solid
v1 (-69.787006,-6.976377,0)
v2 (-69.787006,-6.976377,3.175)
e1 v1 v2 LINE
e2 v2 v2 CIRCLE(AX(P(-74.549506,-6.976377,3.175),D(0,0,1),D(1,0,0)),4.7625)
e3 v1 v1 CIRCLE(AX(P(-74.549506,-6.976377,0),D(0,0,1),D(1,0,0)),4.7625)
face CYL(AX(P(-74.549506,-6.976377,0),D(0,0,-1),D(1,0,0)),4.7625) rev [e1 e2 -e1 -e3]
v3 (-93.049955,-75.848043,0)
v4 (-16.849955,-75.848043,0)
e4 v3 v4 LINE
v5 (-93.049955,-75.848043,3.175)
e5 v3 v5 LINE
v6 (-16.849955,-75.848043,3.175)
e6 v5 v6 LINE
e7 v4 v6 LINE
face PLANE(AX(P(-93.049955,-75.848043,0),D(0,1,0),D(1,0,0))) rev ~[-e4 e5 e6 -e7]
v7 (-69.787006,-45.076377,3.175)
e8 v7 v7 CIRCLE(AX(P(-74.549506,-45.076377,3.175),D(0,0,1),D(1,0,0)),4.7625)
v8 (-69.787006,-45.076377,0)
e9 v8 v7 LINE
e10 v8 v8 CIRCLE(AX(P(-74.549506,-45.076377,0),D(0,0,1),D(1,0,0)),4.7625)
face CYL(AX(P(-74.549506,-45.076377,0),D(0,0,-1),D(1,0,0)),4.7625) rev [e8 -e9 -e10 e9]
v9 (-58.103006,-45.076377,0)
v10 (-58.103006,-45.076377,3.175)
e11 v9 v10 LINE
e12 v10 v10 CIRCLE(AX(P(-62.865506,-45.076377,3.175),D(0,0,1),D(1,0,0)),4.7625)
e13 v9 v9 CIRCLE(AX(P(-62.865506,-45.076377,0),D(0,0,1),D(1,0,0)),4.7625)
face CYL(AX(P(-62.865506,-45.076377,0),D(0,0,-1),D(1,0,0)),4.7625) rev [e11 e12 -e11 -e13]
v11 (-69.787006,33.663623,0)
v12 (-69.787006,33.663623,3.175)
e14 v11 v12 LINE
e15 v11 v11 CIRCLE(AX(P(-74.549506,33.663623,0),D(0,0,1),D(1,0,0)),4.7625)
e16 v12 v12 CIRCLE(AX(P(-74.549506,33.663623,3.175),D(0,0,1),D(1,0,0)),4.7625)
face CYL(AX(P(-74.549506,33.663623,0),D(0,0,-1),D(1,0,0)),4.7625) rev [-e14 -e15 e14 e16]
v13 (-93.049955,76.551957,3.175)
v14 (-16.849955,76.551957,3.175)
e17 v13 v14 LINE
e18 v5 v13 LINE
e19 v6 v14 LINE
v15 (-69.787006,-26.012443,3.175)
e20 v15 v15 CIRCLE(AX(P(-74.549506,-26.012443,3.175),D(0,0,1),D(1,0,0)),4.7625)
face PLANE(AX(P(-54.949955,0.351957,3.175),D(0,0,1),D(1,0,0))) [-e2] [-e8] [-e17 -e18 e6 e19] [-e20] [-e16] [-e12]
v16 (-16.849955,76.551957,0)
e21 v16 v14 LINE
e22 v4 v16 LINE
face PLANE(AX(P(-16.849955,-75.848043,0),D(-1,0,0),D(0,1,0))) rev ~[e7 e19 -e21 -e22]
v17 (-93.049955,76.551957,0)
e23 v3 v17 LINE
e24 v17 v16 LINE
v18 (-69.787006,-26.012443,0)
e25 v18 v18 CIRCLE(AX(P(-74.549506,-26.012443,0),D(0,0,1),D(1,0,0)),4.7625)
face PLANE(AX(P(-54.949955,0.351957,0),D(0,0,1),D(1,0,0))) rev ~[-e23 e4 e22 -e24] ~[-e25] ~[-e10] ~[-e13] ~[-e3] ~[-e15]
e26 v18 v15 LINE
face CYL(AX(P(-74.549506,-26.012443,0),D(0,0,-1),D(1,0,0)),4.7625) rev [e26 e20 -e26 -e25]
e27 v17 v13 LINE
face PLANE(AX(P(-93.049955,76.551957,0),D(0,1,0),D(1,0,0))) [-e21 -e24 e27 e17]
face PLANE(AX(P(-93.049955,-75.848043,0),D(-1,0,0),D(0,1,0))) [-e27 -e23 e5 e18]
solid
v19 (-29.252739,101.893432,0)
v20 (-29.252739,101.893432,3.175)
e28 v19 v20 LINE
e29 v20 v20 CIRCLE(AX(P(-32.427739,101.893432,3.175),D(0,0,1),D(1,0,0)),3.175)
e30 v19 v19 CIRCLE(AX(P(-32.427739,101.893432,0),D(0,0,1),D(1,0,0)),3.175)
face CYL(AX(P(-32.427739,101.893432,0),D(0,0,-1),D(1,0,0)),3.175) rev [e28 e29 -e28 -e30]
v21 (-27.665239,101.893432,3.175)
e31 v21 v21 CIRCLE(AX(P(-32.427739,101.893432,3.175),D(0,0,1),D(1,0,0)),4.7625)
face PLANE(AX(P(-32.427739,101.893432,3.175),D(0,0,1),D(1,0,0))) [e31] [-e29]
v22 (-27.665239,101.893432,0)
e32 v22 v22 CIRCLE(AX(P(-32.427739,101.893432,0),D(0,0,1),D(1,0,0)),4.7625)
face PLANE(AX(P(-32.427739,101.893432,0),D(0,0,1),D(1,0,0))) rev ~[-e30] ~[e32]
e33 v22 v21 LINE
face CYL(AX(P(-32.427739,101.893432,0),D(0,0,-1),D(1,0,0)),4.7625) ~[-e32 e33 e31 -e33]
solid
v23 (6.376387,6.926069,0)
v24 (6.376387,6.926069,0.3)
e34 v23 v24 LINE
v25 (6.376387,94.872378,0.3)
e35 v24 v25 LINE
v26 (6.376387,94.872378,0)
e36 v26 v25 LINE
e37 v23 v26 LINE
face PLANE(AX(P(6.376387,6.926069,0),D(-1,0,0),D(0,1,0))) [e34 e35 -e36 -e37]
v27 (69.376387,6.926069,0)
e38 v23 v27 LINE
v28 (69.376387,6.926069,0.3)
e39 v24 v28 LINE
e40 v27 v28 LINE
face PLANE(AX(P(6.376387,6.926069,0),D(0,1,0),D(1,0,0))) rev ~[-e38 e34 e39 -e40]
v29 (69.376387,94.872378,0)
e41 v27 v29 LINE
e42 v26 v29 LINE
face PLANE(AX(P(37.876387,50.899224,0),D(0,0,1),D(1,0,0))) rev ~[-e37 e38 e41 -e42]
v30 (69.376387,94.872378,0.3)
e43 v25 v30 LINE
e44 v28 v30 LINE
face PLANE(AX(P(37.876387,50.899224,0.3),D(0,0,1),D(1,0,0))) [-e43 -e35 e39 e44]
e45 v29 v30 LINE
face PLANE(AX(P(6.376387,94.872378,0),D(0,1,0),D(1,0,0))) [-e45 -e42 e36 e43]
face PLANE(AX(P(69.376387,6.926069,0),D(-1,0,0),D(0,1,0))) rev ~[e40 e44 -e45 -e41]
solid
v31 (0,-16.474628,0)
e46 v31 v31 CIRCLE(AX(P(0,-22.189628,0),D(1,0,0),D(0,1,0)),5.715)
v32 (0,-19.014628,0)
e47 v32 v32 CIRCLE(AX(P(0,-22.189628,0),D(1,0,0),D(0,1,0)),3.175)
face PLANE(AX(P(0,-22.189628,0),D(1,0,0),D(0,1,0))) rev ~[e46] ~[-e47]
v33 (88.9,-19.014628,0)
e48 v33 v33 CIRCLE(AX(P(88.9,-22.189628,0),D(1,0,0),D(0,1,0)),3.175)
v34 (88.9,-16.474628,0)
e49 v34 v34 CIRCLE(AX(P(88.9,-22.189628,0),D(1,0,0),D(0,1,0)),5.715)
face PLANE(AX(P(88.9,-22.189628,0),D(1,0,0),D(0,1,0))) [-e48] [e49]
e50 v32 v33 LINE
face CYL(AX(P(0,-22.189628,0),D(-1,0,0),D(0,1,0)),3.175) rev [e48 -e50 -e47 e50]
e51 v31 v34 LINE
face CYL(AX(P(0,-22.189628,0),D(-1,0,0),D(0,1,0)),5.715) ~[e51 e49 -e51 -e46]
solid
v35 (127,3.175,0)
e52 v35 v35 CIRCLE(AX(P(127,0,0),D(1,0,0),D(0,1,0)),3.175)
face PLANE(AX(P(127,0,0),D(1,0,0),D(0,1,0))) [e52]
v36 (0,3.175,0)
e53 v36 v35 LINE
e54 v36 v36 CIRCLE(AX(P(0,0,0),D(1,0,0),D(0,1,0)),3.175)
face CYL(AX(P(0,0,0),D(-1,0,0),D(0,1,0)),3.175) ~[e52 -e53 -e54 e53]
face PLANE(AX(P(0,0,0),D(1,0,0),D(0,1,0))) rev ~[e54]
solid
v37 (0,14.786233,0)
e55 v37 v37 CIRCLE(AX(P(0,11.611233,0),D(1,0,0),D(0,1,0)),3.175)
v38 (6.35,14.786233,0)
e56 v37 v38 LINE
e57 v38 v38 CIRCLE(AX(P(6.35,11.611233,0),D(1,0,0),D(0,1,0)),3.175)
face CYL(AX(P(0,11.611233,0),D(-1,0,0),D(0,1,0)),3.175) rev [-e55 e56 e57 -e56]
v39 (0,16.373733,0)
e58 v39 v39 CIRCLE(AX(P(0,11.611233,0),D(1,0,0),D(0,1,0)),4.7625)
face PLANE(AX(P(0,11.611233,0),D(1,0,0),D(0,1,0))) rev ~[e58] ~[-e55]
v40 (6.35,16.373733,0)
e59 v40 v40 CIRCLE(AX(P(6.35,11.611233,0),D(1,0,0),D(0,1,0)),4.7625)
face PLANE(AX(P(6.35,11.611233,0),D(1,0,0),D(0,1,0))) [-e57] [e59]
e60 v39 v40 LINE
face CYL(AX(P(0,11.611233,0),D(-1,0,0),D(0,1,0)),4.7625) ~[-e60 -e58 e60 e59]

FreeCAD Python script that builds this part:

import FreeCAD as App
import Part
import Sketcher

V = App.Vector
Q = App.Units.Quantity

doc = App.newDocument("Part")
body = doc.addObject("PartDesign::Body", "Body")

sketch1 = doc.addObject("Sketcher::SketchObject", "Sketch")
body.addObject(sketch1)
sketch1.AttachmentSupport = (doc.YZ_Plane, [""])
sketch1.MapMode = "FlatFace"
sketch1.addGeometry(Part.Circle(V(0, 0, 0), V(0, 0, 1), 3.2), False)
sketch1.addConstraint(Sketcher.Constraint("Coincident", 0, 3, -1, 1))
sketch1.addConstraint(Sketcher.Constraint("Diameter", 0, Q("0.25 in")))
pad1 = doc.addObject("PartDesign::Pad", "Pad")
body.addObject(pad1)
pad1.Profile = sketch1
pad1.Length = Q("5 in")
body2 = doc.addObject("PartDesign::Body", "Body001")

sketch2 = doc.addObject("Sketcher::SketchObject", "Sketch001")
body2.addObject(sketch2)
sketch2.AttachmentSupport = (doc.getObject("YZ_Plane001"), [""])
sketch2.MapMode = "FlatFace"
sketch2.addGeometry(Part.Circle(V(-22.2, 0, 0), V(0, 0, 1), 5.7), False)
sketch2.addGeometry(Part.Circle(V(-22.2, 0, 0), V(0, 0, 1), 3.2), False)
sketch2.addConstraint(Sketcher.Constraint("Coincident", 1, 3, 0, 3))
sketch2.addConstraint(Sketcher.Constraint("PointOnObject", 0, 3, -1))
sketch2.addConstraint(Sketcher.Constraint("Diameter", 0, Q("0.45 in")))
sketch2.addConstraint(Sketcher.Constraint("Diameter", 1, Q("0.25 in")))
sketch2.addConstraint(Sketcher.Constraint("DistanceX", 0, 3, -1, 1, Q("22.189628 mm")))
pad2 = doc.addObject("PartDesign::Pad", "Pad001")
body2.addObject(pad2)
pad2.Profile = sketch2
pad2.Length = Q("3.5 in")
body3 = doc.addObject("PartDesign::Body", "Body002")

sketch3 = doc.addObject("Sketcher::SketchObject", "Sketch002")
body3.addObject(sketch3)
sketch3.AttachmentSupport = (doc.getObject("XY_Plane002"), [""])
sketch3.MapMode = "FlatFace"
sketch3.addGeometry(Part.LineSegment(V(6, 95, 0), V(6, 7, 0)), False)
sketch3.addGeometry(Part.LineSegment(V(6, 7, 0), V(69, 7, 0)), False)
sketch3.addGeometry(Part.LineSegment(V(69, 7, 0), V(69, 95, 0)), False)
sketch3.addGeometry(Part.LineSegment(V(69, 95, 0), V(6, 95, 0)), False)
sketch3.addConstraint(Sketcher.Constraint("Coincident", 0, 2, 1, 1))
sketch3.addConstraint(Sketcher.Constraint("Coincident", 1, 2, 2, 1))
sketch3.addConstraint(Sketcher.Constraint("Coincident", 2, 2, 3, 1))
sketch3.addConstraint(Sketcher.Constraint("Coincident", 3, 2, 0, 1))
sketch3.addConstraint(Sketcher.Constraint("Vertical", 0))
sketch3.addConstraint(Sketcher.Constraint("Horizontal", 1))
sketch3.addConstraint(Sketcher.Constraint("Vertical", 2))
sketch3.addConstraint(Sketcher.Constraint("Horizontal", 3))
sketch3.addConstraint(Sketcher.Constraint("DistanceX", 1, 1, 1, 2, Q("63 mm")))
sketch3.addConstraint(Sketcher.Constraint("DistanceY", 0, 2, 0, 1, Q("87.946309 mm")))
sketch3.addConstraint(Sketcher.Constraint("DistanceY", -1, 1, 0, 2, Q("6.926069 mm")))
sketch3.addConstraint(Sketcher.Constraint("DistanceX", -1, 1, 0, 2, Q("6.376387 mm")))
pad3 = doc.addObject("PartDesign::Pad", "Pad002")
body3.addObject(pad3)
pad3.Profile = sketch3
pad3.Length = 0.3
body4 = doc.addObject("PartDesign::Body", "Body003")

sketch4 = doc.addObject("Sketcher::SketchObject", "Sketch003")
body4.addObject(sketch4)
sketch4.AttachmentSupport = (doc.getObject("YZ_Plane003"), [""])
sketch4.MapMode = "FlatFace"
sketch4.addGeometry(Part.Circle(V(11.6, 0, 0), V(0, 0, 1), 4.8), False)
sketch4.addGeometry(Part.Circle(V(11.6, 0, 0), V(0, 0, 1), 3.2), False)
sketch4.addConstraint(Sketcher.Constraint("Coincident", 1, 3, 0, 3))
sketch4.addConstraint(Sketcher.Constraint("PointOnObject", 0, 3, -1))
sketch4.addConstraint(Sketcher.Constraint("Diameter", 1, Q("0.25 in")))
sketch4.addConstraint(Sketcher.Constraint("Diameter", 0, Q("0.375 in")))
sketch4.addConstraint(Sketcher.Constraint("DistanceX", -1, 1, 0, 3, Q("11.611233 mm")))
pad4 = doc.addObject("PartDesign::Pad", "Pad003")
body4.addObject(pad4)
pad4.Profile = sketch4
pad4.Length = Q("0.25 in")
body5 = doc.addObject("PartDesign::Body", "Body004")

sketch5 = doc.addObject("Sketcher::SketchObject", "Sketch004")
body5.addObject(sketch5)
sketch5.AttachmentSupport = (doc.getObject("XY_Plane004"), [""])
sketch5.MapMode = "FlatFace"
sketch5.addGeometry(Part.LineSegment(V(-93, 76.6, 0), V(-93, -75.8, 0)), False)
sketch5.addGeometry(Part.LineSegment(V(-93, -75.8, 0), V(-16.8, -75.8, 0)), False)
sketch5.addGeometry(Part.LineSegment(V(-16.8, -75.8, 0), V(-16.8, 76.6, 0)), False)
sketch5.addGeometry(Part.LineSegment(V(-16.8, 76.6, 0), V(-93, 76.6, 0)), False)
sketch5.addGeometry(Part.Circle(V(-74.5, -45.1, 0), V(0, 0, 1), 4.8), False)
sketch5.addGeometry(Part.Circle(V(-74.5, -26, 0), V(0, 0, 1), 4.8), False)
sketch5.addGeometry(Part.Circle(V(-74.5, -7, 0), V(0, 0, 1), 4.8), False)
sketch5.addGeometry(Part.Circle(V(-62.9, -45.1, 0), V(0, 0, 1), 4.8), False)
sketch5.addGeometry(Part.Circle(V(-74.5, 33.7, 0), V(0, 0, 1), 4.8), False)
sketch5.addConstraint(Sketcher.Constraint("Coincident", 0, 2, 1, 1))
sketch5.addConstraint(Sketcher.Constraint("Coincident", 1, 2, 2, 1))
sketch5.addConstraint(Sketcher.Constraint("Coincident", 2, 2, 3, 1))
sketch5.addConstraint(Sketcher.Constraint("Coincident", 3, 2, 0, 1))
sketch5.addConstraint(Sketcher.Constraint("Vertical", 0))
sketch5.addConstraint(Sketcher.Constraint("Horizontal", 1))
sketch5.addConstraint(Sketcher.Constraint("Vertical", 2))
sketch5.addConstraint(Sketcher.Constraint("Horizontal", 3))
sketch5.addConstraint(Sketcher.Constraint("Equal", 4, 5))
sketch5.addConstraint(Sketcher.Constraint("Equal", 5, 6))
sketch5.addConstraint(Sketcher.Constraint("Equal", 6, 7))
sketch5.addConstraint(Sketcher.Constraint("Equal", 7, 8))
sketch5.addConstraint(Sketcher.Constraint("Horizontal", 4, 3, 7, 3))
sketch5.addConstraint(Sketcher.Constraint("Vertical", 4, 3, 5, 3))
sketch5.addConstraint(Sketcher.Constraint("Vertical", 5, 3, 6, 3))
sketch5.addConstraint(Sketcher.Constraint("Vertical", 6, 3, 8, 3))
sketch5.addConstraint(Sketcher.Constraint("DistanceX", 1, 1, 1, 2, Q("3 in")))
sketch5.addConstraint(Sketcher.Constraint("DistanceY", 0, 2, 0, 1, Q("6 in")))
sketch5.addConstraint(Sketcher.Constraint("Diameter", 4, Q("0.375 in")))
sketch5.addConstraint(Sketcher.Constraint("DistanceY", 4, 3, 6, 3, Q("1.5 in")))
sketch5.addConstraint(Sketcher.Constraint("DistanceY", 6, 3, 8, 3, Q("1.6 in")))
sketch5.addConstraint(Sketcher.Constraint("DistanceX", 4, 3, 7, 3, Q("0.46 in")))
sketch5.addConstraint(Sketcher.Constraint("DistanceY", 0, 2, 5, 3, Q("49.8356 mm")))
sketch5.addConstraint(Sketcher.Constraint("DistanceX", 0, 2, 4, 3, Q("18.500449 mm")))
sketch5.addConstraint(Sketcher.Constraint("DistanceX", 4, 3, -1, 1, Q("74.549506 mm")))
sketch5.addConstraint(Sketcher.Constraint("DistanceY", 4, 3, -1, 1, Q("45.076377 mm")))
sketch5.addConstraint(Sketcher.Constraint("DistanceY", 5, 3, -1, 1, Q("26.012443 mm")))
pad5 = doc.addObject("PartDesign::Pad", "Pad004")
body5.addObject(pad5)
pad5.Profile = sketch5
pad5.Length = Q("0.125 in")
body6 = doc.addObject("PartDesign::Body", "Body005")

sketch6 = doc.addObject("Sketcher::SketchObject", "Sketch005")
body6.addObject(sketch6)
sketch6.AttachmentSupport = (doc.getObject("XY_Plane005"), [""])
sketch6.MapMode = "FlatFace"
sketch6.addGeometry(Part.Circle(V(-32.4, 101.9, 0), V(0, 0, 1), 4.8), False)
sketch6.addGeometry(Part.Circle(V(-32.4, 101.9, 0), V(0, 0, 1), 3.2), False)
sketch6.addConstraint(Sketcher.Constraint("Coincident", 1, 3, 0, 3))
sketch6.addConstraint(Sketcher.Constraint("Diameter", 1, Q("0.25 in")))
sketch6.addConstraint(Sketcher.Constraint("Diameter", 0, Q("0.375 in")))
sketch6.addConstraint(Sketcher.Constraint("DistanceX", 0, 3, -1, 1, Q("32.427739 mm")))
sketch6.addConstraint(Sketcher.Constraint("DistanceY", -1, 1, 0, 3, Q("101.893432 mm")))
pad6 = doc.addObject("PartDesign::Pad", "Pad005")
body6.addObject(pad6)
pad6.Profile = sketch6
pad6.Length = Q("0.125 in")

doc.recompute()
